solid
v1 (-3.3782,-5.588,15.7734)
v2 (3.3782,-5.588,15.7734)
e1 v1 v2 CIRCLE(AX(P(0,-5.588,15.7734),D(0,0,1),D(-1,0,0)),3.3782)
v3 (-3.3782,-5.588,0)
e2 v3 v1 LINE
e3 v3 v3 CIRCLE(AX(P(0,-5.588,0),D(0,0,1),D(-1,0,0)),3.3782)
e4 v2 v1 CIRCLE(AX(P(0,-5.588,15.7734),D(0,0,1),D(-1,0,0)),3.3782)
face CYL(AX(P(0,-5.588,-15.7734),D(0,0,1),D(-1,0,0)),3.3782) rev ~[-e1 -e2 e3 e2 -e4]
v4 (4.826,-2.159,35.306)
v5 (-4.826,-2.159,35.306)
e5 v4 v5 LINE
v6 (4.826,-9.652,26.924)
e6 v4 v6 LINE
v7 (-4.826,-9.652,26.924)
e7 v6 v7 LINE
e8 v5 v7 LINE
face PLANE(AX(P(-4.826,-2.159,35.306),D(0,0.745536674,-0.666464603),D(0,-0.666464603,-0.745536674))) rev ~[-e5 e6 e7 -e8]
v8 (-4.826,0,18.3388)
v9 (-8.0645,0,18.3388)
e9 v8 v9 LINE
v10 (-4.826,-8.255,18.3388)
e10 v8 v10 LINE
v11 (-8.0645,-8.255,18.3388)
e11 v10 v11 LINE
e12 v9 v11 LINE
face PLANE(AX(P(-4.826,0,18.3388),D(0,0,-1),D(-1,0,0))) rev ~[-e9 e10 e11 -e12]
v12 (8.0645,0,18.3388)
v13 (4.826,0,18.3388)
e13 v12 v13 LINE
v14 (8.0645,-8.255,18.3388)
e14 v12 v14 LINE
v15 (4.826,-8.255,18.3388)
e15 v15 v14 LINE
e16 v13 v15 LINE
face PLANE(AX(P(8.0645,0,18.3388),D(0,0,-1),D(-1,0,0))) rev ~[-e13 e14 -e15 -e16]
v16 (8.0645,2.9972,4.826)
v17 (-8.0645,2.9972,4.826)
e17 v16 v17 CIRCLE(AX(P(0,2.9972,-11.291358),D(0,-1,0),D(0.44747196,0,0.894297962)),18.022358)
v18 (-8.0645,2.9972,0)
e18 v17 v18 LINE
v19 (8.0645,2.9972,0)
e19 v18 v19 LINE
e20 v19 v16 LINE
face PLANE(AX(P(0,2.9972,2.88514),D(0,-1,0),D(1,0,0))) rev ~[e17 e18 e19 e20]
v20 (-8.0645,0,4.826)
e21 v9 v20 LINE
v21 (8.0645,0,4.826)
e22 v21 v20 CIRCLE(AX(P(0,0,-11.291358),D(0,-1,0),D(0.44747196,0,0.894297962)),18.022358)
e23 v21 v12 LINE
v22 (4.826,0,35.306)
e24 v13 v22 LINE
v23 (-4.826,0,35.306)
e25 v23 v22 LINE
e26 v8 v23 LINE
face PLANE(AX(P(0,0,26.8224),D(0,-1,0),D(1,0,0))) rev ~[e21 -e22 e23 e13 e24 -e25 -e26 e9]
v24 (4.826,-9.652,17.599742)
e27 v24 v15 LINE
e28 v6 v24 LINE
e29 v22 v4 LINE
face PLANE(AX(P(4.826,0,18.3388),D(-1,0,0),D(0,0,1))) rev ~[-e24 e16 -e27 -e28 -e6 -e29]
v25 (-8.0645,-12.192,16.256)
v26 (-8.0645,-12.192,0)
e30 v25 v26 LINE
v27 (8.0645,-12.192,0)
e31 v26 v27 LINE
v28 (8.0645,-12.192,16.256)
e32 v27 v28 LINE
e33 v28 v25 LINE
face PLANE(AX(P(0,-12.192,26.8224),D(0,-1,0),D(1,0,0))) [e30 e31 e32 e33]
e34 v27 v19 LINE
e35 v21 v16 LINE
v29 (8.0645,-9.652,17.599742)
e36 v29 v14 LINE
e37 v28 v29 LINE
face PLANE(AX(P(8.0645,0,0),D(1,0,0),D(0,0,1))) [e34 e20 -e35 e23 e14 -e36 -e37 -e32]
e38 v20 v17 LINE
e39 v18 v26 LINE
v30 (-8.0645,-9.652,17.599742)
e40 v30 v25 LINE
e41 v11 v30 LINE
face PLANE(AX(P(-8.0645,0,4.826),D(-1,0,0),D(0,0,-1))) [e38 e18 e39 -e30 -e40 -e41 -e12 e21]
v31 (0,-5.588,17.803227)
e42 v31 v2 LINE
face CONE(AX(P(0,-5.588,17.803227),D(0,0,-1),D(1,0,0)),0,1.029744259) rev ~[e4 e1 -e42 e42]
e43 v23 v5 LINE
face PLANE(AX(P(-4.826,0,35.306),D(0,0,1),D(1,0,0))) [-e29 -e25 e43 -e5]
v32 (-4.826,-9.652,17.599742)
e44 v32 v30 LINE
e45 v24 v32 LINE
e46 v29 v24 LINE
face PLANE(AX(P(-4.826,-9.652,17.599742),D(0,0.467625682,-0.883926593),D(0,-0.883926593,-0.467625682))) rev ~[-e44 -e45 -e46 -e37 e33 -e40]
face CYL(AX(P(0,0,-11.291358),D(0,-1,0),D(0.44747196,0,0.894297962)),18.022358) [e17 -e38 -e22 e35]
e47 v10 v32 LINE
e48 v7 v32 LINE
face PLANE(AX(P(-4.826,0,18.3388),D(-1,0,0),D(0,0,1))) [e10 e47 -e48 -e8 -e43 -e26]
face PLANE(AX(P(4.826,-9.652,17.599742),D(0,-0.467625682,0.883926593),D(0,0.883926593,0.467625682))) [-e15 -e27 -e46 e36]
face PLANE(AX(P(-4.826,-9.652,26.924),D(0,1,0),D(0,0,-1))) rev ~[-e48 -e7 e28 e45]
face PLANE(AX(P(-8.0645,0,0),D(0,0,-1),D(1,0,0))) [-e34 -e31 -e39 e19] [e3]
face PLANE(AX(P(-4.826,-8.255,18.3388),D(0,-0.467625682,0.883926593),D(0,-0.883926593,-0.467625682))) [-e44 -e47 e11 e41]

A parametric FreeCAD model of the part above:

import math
import FreeCAD as App
import Part
import Sketcher

V = App.Vector
Q = App.Units.Quantity

doc = App.newDocument("Part")
body = doc.addObject("PartDesign::Body", "Body")

# Sketch on XZ plane
sketch1 = body.newObject("Sketcher::SketchObject", "Sketch")
sketch1.AttachmentSupport = (doc.getObject("XZ_Plane"), [""])
sketch1.MapMode = "FlatFace"
sketch1.addGeometry([
    Part.LineSegment(V(-4.8, 35.3, 0), V(-4.8, 18.3, 0)),  # 0
    Part.LineSegment(V(-4.8, 18.3, 0), V(-8.1, 18.3, 0)),  # 1
    Part.LineSegment(V(-8.1, 18.3, 0), V(-8.1, 0, 0)),  # 2
    Part.LineSegment(V(-8.1, 0, 0), V(8.1, 0, 0)),  # 3
    Part.LineSegment(V(8.1, 0, 0), V(8.1, 18.3, 0)),  # 4
    Part.LineSegment(V(8.1, 18.3, 0), V(4.8, 18.3, 0)),  # 5
    Part.LineSegment(V(4.8, 18.3, 0), V(4.8, 35.3, 0)),  # 6
    Part.LineSegment(V(4.8, 35.3, 0), V(-4.8, 35.3, 0)),  # 7
], False)
sketch1.addConstraint([
    Sketcher.Constraint("Coincident", 0, 2, 1, 1),
    Sketcher.Constraint("Coincident", 1, 2, 2, 1),
    Sketcher.Constraint("Coincident", 2, 2, 3, 1),
    Sketcher.Constraint("Coincident", 3, 2, 4, 1),
    Sketcher.Constraint("Coincident", 4, 2, 5, 1),
    Sketcher.Constraint("Coincident", 5, 2, 6, 1),
    Sketcher.Constraint("Coincident", 6, 2, 7, 1),
    Sketcher.Constraint("Coincident", 7, 2, 0, 1),
    Sketcher.Constraint("Vertical", 0),
    Sketcher.Constraint("Horizontal", 1),
    Sketcher.Constraint("Vertical", 2),
    Sketcher.Constraint("Horizontal", 3),
    Sketcher.Constraint("Vertical", 4),
    Sketcher.Constraint("Horizontal", 5),
    Sketcher.Constraint("Vertical", 6),
    Sketcher.Constraint("Horizontal", 7),
    Sketcher.Constraint("Symmetric", 2, 2, 3, 2, -1, 1),
    Sketcher.Constraint("Symmetric", 0, 2, 5, 2, -2),
    Sketcher.Constraint("DistanceX", 7, 2, 7, 1, Q("0.38 in")),
    Sketcher.Constraint("DistanceX", 3, 1, 3, 2, Q("0.635 in")),
    Sketcher.Constraint("DistanceY", 0, 2, 0, 1, Q("0.668 in")),
    Sketcher.Constraint("DistanceY", 2, 2, 2, 1, Q("0.722 in")),
])
pad1 = body.newObject("PartDesign::Pad", "Pad")
pad1.Profile = sketch1
pad1.Length = Q("0.48 in")

# Sketch on XZ plane
sketch2 = body.newObject("Sketcher::SketchObject", "Sketch001")
sketch2.AttachmentSupport = (doc.getObject("XZ_Plane"), [""])
sketch2.MapMode = "FlatFace"
sketch2.addGeometry([
    Part.ArcOfCircle(Part.Circle(V(0, -11.3, 0), V(0, 0, 1), 18), math.radians(63), math.radians(117)),
    Part.LineSegment(V(-8.1, 4.8, 0), V(-8.1, 0, 0)),
    Part.LineSegment(V(-8.1, 0, 0), V(8.1, 0, 0)),
    Part.LineSegment(V(8.1, 0, 0), V(8.1, 4.8, 0)),
], False)
sketch2.addConstraint([
    Sketcher.Constraint("Coincident", 0, 2, 1, 1),
    Sketcher.Constraint("Coincident", 1, 2, 2, 1),
    Sketcher.Constraint("Coincident", 2, 2, 3, 1),
    Sketcher.Constraint("Coincident", 3, 2, 0, 1),
    Sketcher.Constraint("Vertical", 1),
    Sketcher.Constraint("Horizontal", 2),
    Sketcher.Constraint("Vertical", 3),
    Sketcher.Constraint("Symmetric", 1, 2, 2, 2, -1, 1),
    Sketcher.Constraint("PointOnObject", 0, 3, -2),
    Sketcher.Constraint("DistanceY", 1, 2, 1, 1, Q("0.19 in")),
    Sketcher.Constraint("DistanceX", 2, 1, 2, 2, Q("0.635 in")),
    Sketcher.Constraint("Radius", 0, 18.022358),
])
pad2 = body.newObject("PartDesign::Pad", "Pad001")
pad2.Profile = sketch2
pad2.Length = Q("0.118 in")
pad2.Reversed = True

# Sketch on YZ plane
sketch3 = body.newObject("Sketcher::SketchObject", "Sketch002")
sketch3.AttachmentSupport = (doc.getObject("YZ_Plane"), [""])
sketch3.MapMode = "FlatFace"
sketch3.AttachmentOffset = App.Placement(V(0, 0, -0.19 * 25.4), App.Rotation())
sketch3.addGeometry([
    Part.LineSegment(V(-2.2, 37.7, 0), V(-2.2, 35.3, 0)),  # 0
    Part.LineSegment(V(-2.2, 35.3, 0), V(-9.7, 26.9, 0)),  # 1
    Part.LineSegment(V(-9.7, 26.9, 0), V(-9.7, 17.6, 0)),  # 2
    Part.LineSegment(V(-9.7, 17.6, 0), V(-12.2, 16.3, 0)),  # 3
    Part.LineSegment(V(-12.2, 16.3, 0), V(-15.1, 16.3, 0)),  # 4
    Part.LineSegment(V(-15.1, 16.3, 0), V(-15.1, 37.7, 0)),  # 5
    Part.LineSegment(V(-15.1, 37.7, 0), V(-2.2, 37.7, 0)),  # 6
], False)
sketch3.addConstraint([
    Sketcher.Constraint("Coincident", 0, 2, 1, 1),
    Sketcher.Constraint("Coincident", 1, 2, 2, 1),
    Sketcher.Constraint("Coincident", 2, 2, 3, 1),
    Sketcher.Constraint("Coincident", 3, 2, 4, 1),
    Sketcher.Constraint("Coincident", 4, 2, 5, 1),
    Sketcher.Constraint("Coincident", 5, 2, 6, 1),
    Sketcher.Constraint("Coincident", 6, 2, 0, 1),
    Sketcher.Constraint("Vertical", 0),
    Sketcher.Constraint("Vertical", 2),
    Sketcher.Constraint("Horizontal", 4),
    Sketcher.Constraint("Vertical", 5),
    Sketcher.Constraint("Horizontal", 6),
    Sketcher.Constraint("DistanceX", 3, 2, 2, 2, Q("0.1 in")),
    Sketcher.Constraint("DistanceY", -1, 1, 0, 2, Q("1.39 in")),
    Sketcher.Constraint("DistanceX", 1, 2, -1, 1, Q("0.38 in")),
    Sketcher.Constraint("DistanceY", -1, 1, 1, 2, Q("1.06 in")),
    Sketcher.Constraint("DistanceY", -1, 1, 3, 2, Q("0.64 in")),
    Sketcher.Constraint("DistanceX", 0, 2, -1, 1, Q("0.085 in")),
    Sketcher.Constraint("DistanceY", 2, 2, 2, 1, 9.324258),
    Sketcher.Constraint("DistanceX", 4, 2, 4, 1, 2.905416),
    Sketcher.Constraint("DistanceY", 0, 2, 0, 1, 2.344194),
])
pocket1 = body.newObject("PartDesign::Pocket", "Pocket")
pocket1.Profile = sketch3
pocket1.Length = Q("2 in")
pocket1.Midplane = True

# Sketch on YZ plane
sketch4 = body.newObject("Sketcher::SketchObject", "Sketch003")
sketch4.AttachmentSupport = (doc.getObject("YZ_Plane"), [""])
sketch4.MapMode = "FlatFace"
sketch4.AttachmentOffset = App.Placement(V(0, 0, -0.19 * 25.4), App.Rotation())
sketch4.addGeometry([
    Part.LineSegment(V(-9.7, 17.6, 0), V(-9.7, 18.3, 0)),
    Part.LineSegment(V(-9.7, 18.3, 0), V(-8.3, 18.3, 0)),
    Part.LineSegment(V(-8.3, 18.3, 0), V(-9.7, 17.6, 0)),
], False)
sketch4.addConstraint([
    Sketcher.Constraint("Coincident", 0, 2, 1, 1),
    Sketcher.Constraint("Coincident", 1, 2, 2, 1),
    Sketcher.Constraint("Coincident", 2, 2, 0, 1),
    Sketcher.Constraint("Vertical", 0),
    Sketcher.Constraint("Horizontal", 1),
    Sketcher.Constraint("DistanceX", 1, 1, 1, 2, Q("0.055 in")),
    Sketcher.Constraint("DistanceX", 0, 2, -1, 1, Q("0.38 in")),
    Sketcher.Constraint("DistanceY", -1, 1, 0, 2, Q("0.722 in")),
    Sketcher.Constraint("DistanceY", 0, 1, 0, 2, 0.739058),
])
pocket2 = body.newObject("PartDesign::Pocket", "Pocket001")
pocket2.Profile = sketch4
pocket2.Type = "ThroughAll"

# Sketch on YZ plane
sketch5 = body.newObject("Sketcher::SketchObject", "Sketch004")
sketch5.AttachmentSupport = (doc.getObject("YZ_Plane"), [""])
sketch5.MapMode = "FlatFace"
sketch5.AttachmentOffset = App.Placement(V(0, 0, 0.19 * 25.4), App.Rotation())
sketch5.addGeometry([
    Part.LineSegment(V(-8.3, 18.3, 0), V(-9.7, 18.3, 0)),
    Part.LineSegment(V(-9.7, 18.3, 0), V(-9.7, 17.6, 0)),
    Part.LineSegment(V(-9.7, 17.6, 0), V(-8.3, 18.3, 0)),
], False)
sketch5.addConstraint([
    Sketcher.Constraint("Coincident", 0, 2, 1, 1),
    Sketcher.Constraint("Coincident", 1, 2, 2, 1),
    Sketcher.Constraint("Coincident", 2, 2, 0, 1),
    Sketcher.Constraint("Horizontal", 0),
    Sketcher.Constraint("Vertical", 1),
    Sketcher.Constraint("DistanceX", 0, 2, 0, 1, Q("0.055 in")),
    Sketcher.Constraint("DistanceX", 0, 2, -1, 1, Q("0.38 in")),
    Sketcher.Constraint("DistanceY", -1, 1, 0, 2, Q("0.722 in")),
    Sketcher.Constraint("DistanceY", 1, 2, 1, 1, 0.739058),
])
pocket3 = body.newObject("PartDesign::Pocket", "Pocket002")
pocket3.Profile = sketch5
pocket3.Type = "ThroughAll"
pocket3.Reversed = True

# Sketch on XY plane
sketch6 = body.newObject("Sketcher::SketchObject", "Sketch005")
sketch6.AttachmentSupport = (doc.getObject("XY_Plane"), [""])
sketch6.MapMode = "FlatFace"
sketch6.addGeometry(Part.Circle(V(0, -5.6, 0), V(0, 0, 1), 3.4), False)
sketch6.addConstraint([
    Sketcher.Constraint("PointOnObject", 0, 3, -2),
    Sketcher.Constraint("Diameter", 0, Q("0.266 in")),
    Sketcher.Constraint("DistanceY", 0, 3, -1, 1, Q("0.22 in")),
])
doc.recompute()
hole = body.newObject("PartDesign::Hole", "Hole")
hole.Profile = sketch6
hole.ThreadType = "None"
hole.Diameter = Q("0.266 in")
hole.DepthType = "Dimension"
hole.Depth = Q("0.621 in")
hole.DrillPoint = "Angled"
hole.DrillPointAngle = 118
hole.Reversed = True

doc.recompute()
